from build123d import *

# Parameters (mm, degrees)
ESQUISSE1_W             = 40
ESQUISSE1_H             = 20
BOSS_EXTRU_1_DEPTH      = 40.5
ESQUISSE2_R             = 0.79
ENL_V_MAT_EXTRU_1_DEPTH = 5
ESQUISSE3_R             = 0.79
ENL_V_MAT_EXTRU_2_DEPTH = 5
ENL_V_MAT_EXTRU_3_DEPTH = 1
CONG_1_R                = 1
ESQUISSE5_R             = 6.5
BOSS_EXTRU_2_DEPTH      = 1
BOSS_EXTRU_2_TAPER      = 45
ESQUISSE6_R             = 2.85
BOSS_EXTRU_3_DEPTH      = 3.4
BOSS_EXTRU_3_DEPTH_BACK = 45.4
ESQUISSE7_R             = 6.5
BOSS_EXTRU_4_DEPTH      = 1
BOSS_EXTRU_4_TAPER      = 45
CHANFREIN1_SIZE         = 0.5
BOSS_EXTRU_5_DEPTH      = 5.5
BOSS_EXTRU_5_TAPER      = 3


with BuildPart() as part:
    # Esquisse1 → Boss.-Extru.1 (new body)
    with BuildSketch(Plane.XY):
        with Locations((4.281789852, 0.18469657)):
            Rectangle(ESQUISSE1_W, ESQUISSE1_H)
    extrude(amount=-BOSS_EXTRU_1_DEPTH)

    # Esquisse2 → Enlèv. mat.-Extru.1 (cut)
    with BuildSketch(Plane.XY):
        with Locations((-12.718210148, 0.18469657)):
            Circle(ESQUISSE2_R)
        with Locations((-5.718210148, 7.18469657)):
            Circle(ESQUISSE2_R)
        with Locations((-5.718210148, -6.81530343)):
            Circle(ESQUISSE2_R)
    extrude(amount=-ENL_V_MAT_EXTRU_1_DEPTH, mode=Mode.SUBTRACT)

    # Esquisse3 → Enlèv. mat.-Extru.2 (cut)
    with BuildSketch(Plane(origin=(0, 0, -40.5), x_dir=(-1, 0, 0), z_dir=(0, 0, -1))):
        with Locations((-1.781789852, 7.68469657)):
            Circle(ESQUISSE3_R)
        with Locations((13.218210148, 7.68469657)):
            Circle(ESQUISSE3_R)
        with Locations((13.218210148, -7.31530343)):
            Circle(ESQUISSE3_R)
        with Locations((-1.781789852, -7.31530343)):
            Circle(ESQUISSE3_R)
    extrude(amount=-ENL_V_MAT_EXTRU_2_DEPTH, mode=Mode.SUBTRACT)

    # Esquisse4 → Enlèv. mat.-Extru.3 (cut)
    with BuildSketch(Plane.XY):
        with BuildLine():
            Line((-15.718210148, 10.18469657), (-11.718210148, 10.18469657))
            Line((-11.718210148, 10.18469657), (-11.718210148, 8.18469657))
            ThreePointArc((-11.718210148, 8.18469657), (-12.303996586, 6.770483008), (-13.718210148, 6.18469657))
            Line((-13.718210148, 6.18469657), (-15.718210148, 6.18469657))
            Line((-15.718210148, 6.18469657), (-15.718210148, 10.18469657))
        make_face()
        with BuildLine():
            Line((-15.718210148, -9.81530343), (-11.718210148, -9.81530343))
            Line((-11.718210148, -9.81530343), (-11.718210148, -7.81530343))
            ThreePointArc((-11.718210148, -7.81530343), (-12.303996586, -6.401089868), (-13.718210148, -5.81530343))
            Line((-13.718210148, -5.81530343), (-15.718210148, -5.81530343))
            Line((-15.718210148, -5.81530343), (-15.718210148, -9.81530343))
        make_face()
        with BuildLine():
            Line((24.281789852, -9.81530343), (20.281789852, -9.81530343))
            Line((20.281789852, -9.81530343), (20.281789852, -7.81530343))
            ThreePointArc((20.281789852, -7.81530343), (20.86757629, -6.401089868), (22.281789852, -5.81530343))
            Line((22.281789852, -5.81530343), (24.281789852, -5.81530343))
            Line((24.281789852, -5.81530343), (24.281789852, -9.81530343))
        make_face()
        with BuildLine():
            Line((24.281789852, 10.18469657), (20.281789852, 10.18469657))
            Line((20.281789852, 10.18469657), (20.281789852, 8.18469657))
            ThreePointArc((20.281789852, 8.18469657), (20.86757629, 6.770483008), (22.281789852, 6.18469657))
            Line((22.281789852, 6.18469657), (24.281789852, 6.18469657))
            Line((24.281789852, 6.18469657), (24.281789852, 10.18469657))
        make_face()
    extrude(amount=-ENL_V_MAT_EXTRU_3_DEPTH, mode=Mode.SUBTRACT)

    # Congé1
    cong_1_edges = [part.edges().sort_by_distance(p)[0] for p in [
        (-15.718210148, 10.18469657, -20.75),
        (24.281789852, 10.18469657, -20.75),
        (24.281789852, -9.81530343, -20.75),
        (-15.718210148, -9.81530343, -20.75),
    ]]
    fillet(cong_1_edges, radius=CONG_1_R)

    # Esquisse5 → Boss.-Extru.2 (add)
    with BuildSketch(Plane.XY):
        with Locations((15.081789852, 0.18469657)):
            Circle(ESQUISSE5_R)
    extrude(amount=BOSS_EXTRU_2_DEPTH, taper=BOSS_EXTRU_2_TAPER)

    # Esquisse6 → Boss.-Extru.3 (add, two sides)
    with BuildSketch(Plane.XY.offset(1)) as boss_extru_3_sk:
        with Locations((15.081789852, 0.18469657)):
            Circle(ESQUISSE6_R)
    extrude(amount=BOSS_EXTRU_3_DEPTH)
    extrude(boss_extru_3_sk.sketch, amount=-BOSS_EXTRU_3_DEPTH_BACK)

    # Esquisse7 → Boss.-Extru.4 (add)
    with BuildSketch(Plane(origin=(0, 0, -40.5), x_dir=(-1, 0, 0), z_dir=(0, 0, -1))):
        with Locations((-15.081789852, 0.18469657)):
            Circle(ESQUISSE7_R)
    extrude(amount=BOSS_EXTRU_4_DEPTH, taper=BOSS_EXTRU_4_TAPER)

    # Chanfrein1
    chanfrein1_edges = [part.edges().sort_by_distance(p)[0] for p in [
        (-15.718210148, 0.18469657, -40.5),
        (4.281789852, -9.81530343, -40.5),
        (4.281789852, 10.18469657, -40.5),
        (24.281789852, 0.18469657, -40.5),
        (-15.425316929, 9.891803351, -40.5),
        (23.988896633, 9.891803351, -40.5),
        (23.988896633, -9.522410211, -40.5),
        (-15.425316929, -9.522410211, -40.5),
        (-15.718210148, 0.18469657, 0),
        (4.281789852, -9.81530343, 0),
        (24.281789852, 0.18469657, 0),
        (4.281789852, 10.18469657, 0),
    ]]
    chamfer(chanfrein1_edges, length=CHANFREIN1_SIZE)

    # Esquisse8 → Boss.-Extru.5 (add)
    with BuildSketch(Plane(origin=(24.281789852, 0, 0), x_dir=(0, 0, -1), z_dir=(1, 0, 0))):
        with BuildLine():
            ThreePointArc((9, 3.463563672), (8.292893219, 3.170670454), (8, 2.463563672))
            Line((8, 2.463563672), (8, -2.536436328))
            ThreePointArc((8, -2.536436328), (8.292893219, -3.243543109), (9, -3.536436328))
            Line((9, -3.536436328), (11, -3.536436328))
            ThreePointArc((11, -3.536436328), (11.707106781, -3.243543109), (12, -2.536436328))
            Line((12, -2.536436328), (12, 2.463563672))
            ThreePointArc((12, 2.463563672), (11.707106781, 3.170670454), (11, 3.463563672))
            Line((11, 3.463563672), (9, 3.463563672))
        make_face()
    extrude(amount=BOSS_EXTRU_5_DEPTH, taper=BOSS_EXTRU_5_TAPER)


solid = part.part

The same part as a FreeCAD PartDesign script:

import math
import FreeCAD as App
import Part
import Sketcher

V = App.Vector
Q = App.Units.Quantity


def edges_at(feature, points):
    """Names of the edges that pass closest to the given points."""
    edges = feature.Shape.Edges
    near = lambda p: min(range(len(edges)), key=lambda i: edges[i].distToShape(Part.Vertex(*p))[0])
    return sorted({f"Edge{near(p) + 1}" for p in points})


def add_polygon(sketch, points):
    """Adds a closed chain of lines whose ends are joined by coincident constraints."""
    first, n = sketch.GeometryCount, len(points)
    for a, b in zip(points, points[1:] + points[:1]):
        sketch.addGeometry(Part.LineSegment(App.Vector(*a, 0), App.Vector(*b, 0)), False)
    for i in range(n):
        sketch.addConstraint(Sketcher.Constraint("Coincident", first + i, 2, first + (i + 1) % n, 1))

doc = App.newDocument("Part")
params = doc.addObject("Spreadsheet::Sheet", "Params")
for row, (alias, value) in enumerate([
    ("sketch1_width", "40 mm"),
    ("sketch1_height", "20 mm"),
    ("pad1_length", "40.5 mm"),
    ("sketch2_diameter", "1.58 mm"),
    ("pocket1_length", "5 mm"),
    ("sketch3_diameter", "1.58 mm"),
    ("pocket2_length", "5 mm"),
    ("sketch4_radius", "2 mm"),
    ("sketch4_width", "4 mm"),
    ("pocket3_length", "1 mm"),
    ("fillet_radius", "1 mm"),
    ("sketch5_diameter", "13 mm"),
    ("pad2_length", "1 mm"),
    ("pad2_taper", "-45 deg"),
    ("sketch6_diameter", "5.7 mm"),
    ("pad3_length", "3.4 mm"),
    ("pad3_length2", "45.4 mm"),
    ("sketch7_diameter", "13 mm"),
    ("pad4_length", "1 mm"),
    ("pad4_taper", "-45 deg"),
    ("chamfer_size", "0.5 mm"),
    ("sketch8_radius", "1 mm"),
    ("sketch8_width", "5 mm"),
    ("sketch8_height", "2 mm"),
    ("pad5_length", "5.5 mm"),
    ("pad5_taper", "-3 deg"),
], start=1):
    params.set(f"A{row}", alias)
    params.set(f"B{row}", "=" + value)
    params.setAlias(f"B{row}", alias)

body = doc.addObject("PartDesign::Body", "Body")

# Sketch on XY plane
sketch1 = body.newObject("Sketcher::SketchObject", "Sketch")
sketch1.AttachmentSupport = (doc.getObject("XY_Plane"), [""])
sketch1.MapMode = "FlatFace"
add_polygon(sketch1, [(-16, 10), (-16, -10), (24, -10), (24, 10)])  # lines 0-3
sketch1.addConstraint([
    Sketcher.Constraint("Vertical", 0),
    Sketcher.Constraint("Horizontal", 1),
    Sketcher.Constraint("Vertical", 2),
    Sketcher.Constraint("Horizontal", 3),
    Sketcher.Constraint("DistanceX", 1, 1, 1, 2, Q("40 mm")),
    Sketcher.Constraint("DistanceY", 0, 2, 0, 1, Q("20 mm")),
    Sketcher.Constraint("DistanceX", 0, 2, -1, 1, Q("15.71821 mm")),
    Sketcher.Constraint("DistanceY", 0, 2, -1, 1, Q("9.815303 mm")),
])
sketch1.setExpression("Constraints[8]", "Params.sketch1_width")
sketch1.setExpression("Constraints[9]", "Params.sketch1_height")
pad1 = body.newObject("PartDesign::Pad", "Pad")
pad1.Profile = sketch1
pad1.setExpression("Length", "Params.pad1_length")
pad1.Reversed = True

# Sketch on XY plane
sketch2 = body.newObject("Sketcher::SketchObject", "Sketch001")
sketch2.AttachmentSupport = (doc.getObject("XY_Plane"), [""])
sketch2.MapMode = "FlatFace"
sketch2.addGeometry([
    Part.Circle(V(-12.7, 0.2, 0), V(0, 0, 1), 0.8),
    Part.Circle(V(-5.7, 7.2, 0), V(0, 0, 1), 0.8),
    Part.Circle(V(-5.7, -6.8, 0), V(0, 0, 1), 0.8),
], False)
sketch2.addConstraint([
    Sketcher.Constraint("Equal", 0, 1),
    Sketcher.Constraint("Equal", 1, 2),
    Sketcher.Constraint("Vertical", 1, 3, 2, 3),
    Sketcher.Constraint("Diameter", 0, Q("1.58 mm")),
    Sketcher.Constraint("DistanceX", 0, 3, 1, 3, Q("7 mm")),
    Sketcher.Constraint("DistanceY", 0, 3, 1, 3, Q("7 mm")),
    Sketcher.Constraint("DistanceY", 2, 3, 0, 3, Q("7 mm")),
    Sketcher.Constraint("DistanceX", 0, 3, -1, 1, Q("12.71821 mm")),
    Sketcher.Constraint("DistanceY", -1, 1, 0, 3, Q("0.184697 mm")),
])
sketch2.setExpression("Constraints[3]", "Params.sketch2_diameter")
pocket1 = body.newObject("PartDesign::Pocket", "Pocket")
pocket1.Profile = sketch2
pocket1.setExpression("Length", "Params.pocket1_length")

# Sketch on XY plane
sketch3 = body.newObject("Sketcher::SketchObject", "Sketch002")
sketch3.AttachmentSupport = (doc.getObject("XY_Plane"), [""])
sketch3.MapMode = "FlatFace"
sketch3.AttachmentOffset = App.Placement(V(0, 0, -40.5), App.Rotation())
sketch3.addGeometry([
    Part.Circle(V(1.8, 7.7, 0), V(0, 0, 1), 0.8),
    Part.Circle(V(-13.2, 7.7, 0), V(0, 0, 1), 0.8),
    Part.Circle(V(-13.2, -7.3, 0), V(0, 0, 1), 0.8),
    Part.Circle(V(1.8, -7.3, 0), V(0, 0, 1), 0.8),
], False)
sketch3.addConstraint([
    Sketcher.Constraint("Equal", 0, 1),
    Sketcher.Constraint("Equal", 1, 2),
    Sketcher.Constraint("Equal", 2, 3),
    Sketcher.Constraint("Horizontal", 0, 3, 1, 3),
    Sketcher.Constraint("Horizontal", 2, 3, 3, 3),
    Sketcher.Constraint("Vertical", 1, 3, 2, 3),
    Sketcher.Constraint("Vertical", 0, 3, 3, 3),
    Sketcher.Constraint("Diameter", 0, Q("1.58 mm")),
    Sketcher.Constraint("DistanceX", 1, 3, 0, 3, Q("15 mm")),
    Sketcher.Constraint("DistanceY", 2, 3, 1, 3, Q("15 mm")),
    Sketcher.Constraint("DistanceX", -1, 1, 0, 3, Q("1.78179 mm")),
    Sketcher.Constraint("DistanceY", -1, 1, 0, 3, Q("7.684697 mm")),
])
sketch3.setExpression("Constraints[7]", "Params.sketch3_diameter")
pocket2 = body.newObject("PartDesign::Pocket", "Pocket001")
pocket2.Profile = sketch3
pocket2.setExpression("Length", "Params.pocket2_length")
pocket2.Reversed = True

# Sketch on XY plane
sketch4 = body.newObject("Sketcher::SketchObject", "Sketch003")
sketch4.AttachmentSupport = (doc.getObject("XY_Plane"), [""])
sketch4.MapMode = "FlatFace"
sketch4.addGeometry([
    Part.LineSegment(V(-11.7, 10.2, 0), V(-15.7, 10.2, 0)),  # 0
    Part.LineSegment(V(-15.7, 10.2, 0), V(-15.7, 6.2, 0)),  # 1
    Part.LineSegment(V(-15.7, 6.2, 0), V(-13.7, 6.2, 0)),  # 2
    Part.ArcOfCircle(Part.Circle(V(-13.7, 8.2, 0), V(0, 0, 1), 2), math.radians(-90), math.radians(0)),  # 3
    Part.LineSegment(V(-11.7, 8.2, 0), V(-11.7, 10.2, 0)),  # 4
    Part.LineSegment(V(-15.7, -9.8, 0), V(-11.7, -9.8, 0)),  # 5
    Part.LineSegment(V(-11.7, -9.8, 0), V(-11.7, -7.8, 0)),  # 6
    Part.ArcOfCircle(Part.Circle(V(-13.7, -7.8, 0), V(0, 0, 1), 2), math.radians(0), math.radians(90)),  # 7
    Part.LineSegment(V(-13.7, -5.8, 0), V(-15.7, -5.8, 0)),  # 8
    Part.LineSegment(V(-15.7, -5.8, 0), V(-15.7, -9.8, 0)),  # 9
    Part.LineSegment(V(20.3, -9.8, 0), V(24.3, -9.8, 0)),  # 10
    Part.LineSegment(V(24.3, -9.8, 0), V(24.3, -5.8, 0)),  # 11
    Part.LineSegment(V(24.3, -5.8, 0), V(22.3, -5.8, 0)),  # 12
    Part.ArcOfCircle(Part.Circle(V(22.3, -7.8, 0), V(0, 0, 1), 2), math.radians(90), math.radians(180)),  # 13
    Part.LineSegment(V(20.3, -7.8, 0), V(20.3, -9.8, 0)),  # 14
    Part.LineSegment(V(24.3, 10.2, 0), V(20.3, 10.2, 0)),  # 15
    Part.LineSegment(V(20.3, 10.2, 0), V(20.3, 8.2, 0)),  # 16
    Part.ArcOfCircle(Part.Circle(V(22.3, 8.2, 0), V(0, 0, 1), 2), math.radians(-180), math.radians(-90)),  # 17
    Part.LineSegment(V(22.3, 6.2, 0), V(24.3, 6.2, 0)),  # 18
    Part.LineSegment(V(24.3, 6.2, 0), V(24.3, 10.2, 0)),  # 19
], False)
sketch4.addConstraint([
    Sketcher.Constraint("Coincident", 0, 2, 1, 1),
    Sketcher.Constraint("Coincident", 1, 2, 2, 1),
    Sketcher.Constraint("Tangent", 2, 2, 3, 1),
    Sketcher.Constraint("Tangent", 3, 2, 4, 1),
    Sketcher.Constraint("Coincident", 4, 2, 0, 1),
    Sketcher.Constraint("Coincident", 5, 2, 6, 1),
    Sketcher.Constraint("Tangent", 6, 2, 7, 1),
    Sketcher.Constraint("Tangent", 7, 2, 8, 1),
    Sketcher.Constraint("Coincident", 8, 2, 9, 1),
    Sketcher.Constraint("Coincident", 9, 2, 5, 1),
    Sketcher.Constraint("Coincident", 10, 2, 11, 1),
    Sketcher.Constraint("Coincident", 11, 2, 12, 1),
    Sketcher.Constraint("Tangent", 12, 2, 13, 1),
    Sketcher.Constraint("Tangent", 13, 2, 14, 1),
    Sketcher.Constraint("Coincident", 14, 2, 10, 1),
    Sketcher.Constraint("Coincident", 15, 2, 16, 1),
    Sketcher.Constraint("Tangent", 16, 2, 17, 1),
    Sketcher.Constraint("Tangent", 17, 2, 18, 1),
    Sketcher.Constraint("Coincident", 18, 2, 19, 1),
    Sketcher.Constraint("Coincident", 19, 2, 15, 1),
    Sketcher.Constraint("Horizontal", 0),
    Sketcher.Constraint("Vertical", 1),
    Sketcher.Constraint("Horizontal", 2),
    Sketcher.Constraint("Vertical", 4),
    Sketcher.Constraint("Horizontal", 5),
    Sketcher.Constraint("Vertical", 6),
    Sketcher.Constraint("Horizontal", 8),
    Sketcher.Constraint("Vertical", 9),
    Sketcher.Constraint("Horizontal", 10),
    Sketcher.Constraint("Vertical", 11),
    Sketcher.Constraint("Horizontal", 12),
    Sketcher.Constraint("Vertical", 14),
    Sketcher.Constraint("Horizontal", 15),
    Sketcher.Constraint("Vertical", 16),
    Sketcher.Constraint("Horizontal", 18),
    Sketcher.Constraint("Vertical", 19),
    Sketcher.Constraint("Equal", 3, 7),
    Sketcher.Constraint("Equal", 7, 13),
    Sketcher.Constraint("Equal", 13, 17),
    Sketcher.Constraint("Horizontal", 7, 3, 13, 3),
    Sketcher.Constraint("Horizontal", 3, 3, 17, 3),
    Sketcher.Constraint("Horizontal", 9, 2, 10, 2),
    Sketcher.Constraint("Horizontal", 4, 2, 15, 2),
    Sketcher.Constraint("Vertical", 3, 3, 7, 3),
    Sketcher.Constraint("Vertical", 13, 3, 17, 3),
    Sketcher.Constraint("Vertical", 1, 2, 8, 2),
    Sketcher.Constraint("Vertical", 11, 2, 18, 2),
    Sketcher.Constraint("Equal", 5, 10),
    Sketcher.Constraint("Equal", 15, 1),
    Sketcher.Constraint("Equal", 4, 6),
    Sketcher.Constraint("Radius", 3, Q("2 mm")),
    Sketcher.Constraint("DistanceX", 0, 2, 0, 1, Q("4 mm")),
    Sketcher.Constraint("DistanceY", 7, 3, 3, 3, Q("16 mm")),
    Sketcher.Constraint("DistanceX", 7, 3, 13, 3, Q("36 mm")),
    Sketcher.Constraint("DistanceX", 3, 3, -1, 1, Q("13.71821 mm")),
    Sketcher.Constraint("DistanceY", -1, 1, 3, 3, Q("8.184697 mm")),
])
sketch4.setExpression("Constraints[50]", "Params.sketch4_radius")
sketch4.setExpression("Constraints[51]", "Params.sketch4_width")
pocket3 = body.newObject("PartDesign::Pocket", "Pocket002")
pocket3.Profile = sketch4
pocket3.setExpression("Length", "Params.pocket3_length")
doc.recompute()

fillet = body.newObject("PartDesign::Fillet", "Fillet")
fillet.Base = (pocket3, edges_at(pocket3, [
    (-15.718, 10.185, -20.75),
    (24.282, 10.185, -20.75),
    (24.282, -9.815, -20.75),
    (-15.718, -9.815, -20.75),
]))
fillet.setExpression("Radius", "Params.fillet_radius")

# Sketch on XY plane
sketch5 = body.newObject("Sketcher::SketchObject", "Sketch004")
sketch5.AttachmentSupport = (doc.getObject("XY_Plane"), [""])
sketch5.MapMode = "FlatFace"
sketch5.addGeometry(Part.Circle(V(15, 0, 0), V(0, 0, 1), 6), False)
sketch5.addConstraint([
    Sketcher.Constraint("Diameter", 0, Q("13 mm")),
    Sketcher.Constraint("DistanceX", -1, 1, 0, 3, Q("15.08179 mm")),
    Sketcher.Constraint("DistanceY", -1, 1, 0, 3, Q("0.184697 mm")),
])
sketch5.setExpression("Constraints[0]", "Params.sketch5_diameter")
pad2 = body.newObject("PartDesign::Pad", "Pad001")
pad2.Profile = sketch5
pad2.setExpression("Length", "Params.pad2_length")
pad2.setExpression("TaperAngle", "Params.pad2_taper")

# Sketch on XY plane
sketch6 = body.newObject("Sketcher::SketchObject", "Sketch005")
sketch6.AttachmentSupport = (doc.getObject("XY_Plane"), [""])
sketch6.MapMode = "FlatFace"
sketch6.AttachmentOffset = App.Placement(V(0, 0, 1), App.Rotation())
sketch6.addGeometry(Part.Circle(V(15.1, 0.2, 0), V(0, 0, 1), 2.9), False)
sketch6.addConstraint([
    Sketcher.Constraint("Diameter", 0, Q("5.7 mm")),
    Sketcher.Constraint("DistanceX", -1, 1, 0, 3, Q("15.08179 mm")),
    Sketcher.Constraint("DistanceY", -1, 1, 0, 3, Q("0.184697 mm")),
])
sketch6.setExpression("Constraints[0]", "Params.sketch6_diameter")
pad3 = body.newObject("PartDesign::Pad", "Pad002")
pad3.Profile = sketch6
pad3.Type = "TwoLengths"
pad3.setExpression("Length", "Params.pad3_length")
pad3.setExpression("Length2", "Params.pad3_length2")

# Sketch on XY plane
sketch7 = body.newObject("Sketcher::SketchObject", "Sketch006")
sketch7.AttachmentSupport = (doc.getObject("XY_Plane"), [""])
sketch7.MapMode = "FlatFace"
sketch7.AttachmentOffset = App.Placement(V(0, 0, -40.5), App.Rotation())
sketch7.addGeometry(Part.Circle(V(15, 0, 0), V(0, 0, 1), 6), False)
sketch7.addConstraint([
    Sketcher.Constraint("Diameter", 0, Q("13 mm")),
    Sketcher.Constraint("DistanceX", -1, 1, 0, 3, Q("15.08179 mm")),
    Sketcher.Constraint("DistanceY", -1, 1, 0, 3, Q("0.184697 mm")),
])
sketch7.setExpression("Constraints[0]", "Params.sketch7_diameter")
pad4 = body.newObject("PartDesign::Pad", "Pad003")
pad4.Profile = sketch7
pad4.setExpression("Length", "Params.pad4_length")
pad4.Reversed = True
pad4.setExpression("TaperAngle", "Params.pad4_taper")
doc.recompute()

chamfer = body.newObject("PartDesign::Chamfer", "Chamfer")
chamfer.Base = (pad4, edges_at(pad4, [
    (-15.718, 0.185, -40.5),
    (4.282, -9.815, -40.5),
    (4.282, 10.185, -40.5),
    (24.282, 0.185, -40.5),
    (-15.425, 9.892, -40.5),
    (23.989, 9.892, -40.5),
    (23.989, -9.522, -40.5),
    (-15.425, -9.522, -40.5),
    (-15.718, 0.185, 0),
    (4.282, -9.815, 0),
    (24.282, 0.185, 0),
    (4.282, 10.185, 0),
]))
chamfer.setExpression("Size", "Params.chamfer_size")

# Sketch on YZ plane
sketch8 = body.newObject("Sketcher::SketchObject", "Sketch007")
sketch8.AttachmentSupport = (doc.getObject("YZ_Plane"), [""])
sketch8.MapMode = "FlatFace"
sketch8.AttachmentOffset = App.Placement(V(0, 0, 24.28179), App.Rotation())
sketch8.addGeometry([
    Part.ArcOfCircle(Part.Circle(V(2.5, -9, 0), V(0, 0, 1), 1), math.radians(0), math.radians(90)),  # 0
    Part.LineSegment(V(2.5, -8, 0), V(-2.5, -8, 0)),  # 1
    Part.ArcOfCircle(Part.Circle(V(-2.5, -9, 0), V(0, 0, 1), 1), math.radians(90), math.radians(180)),  # 2
    Part.LineSegment(V(-3.5, -9, 0), V(-3.5, -11, 0)),  # 3
    Part.ArcOfCircle(Part.Circle(V(-2.5, -11, 0), V(0, 0, 1), 1), math.radians(-180), math.radians(-90)),  # 4
    Part.LineSegment(V(-2.5, -12, 0), V(2.5, -12, 0)),  # 5
    Part.ArcOfCircle(Part.Circle(V(2.5, -11, 0), V(0, 0, 1), 1), math.radians(-90), math.radians(0)),  # 6
    Part.LineSegment(V(3.5, -11, 0), V(3.5, -9, 0)),  # 7
], False)
sketch8.addConstraint([
    Sketcher.Constraint("Tangent", 0, 2, 1, 1),
    Sketcher.Constraint("Tangent", 1, 2, 2, 1),
    Sketcher.Constraint("Tangent", 2, 2, 3, 1),
    Sketcher.Constraint("Tangent", 3, 2, 4, 1),
    Sketcher.Constraint("Tangent", 4, 2, 5, 1),
    Sketcher.Constraint("Tangent", 5, 2, 6, 1),
    Sketcher.Constraint("Tangent", 6, 2, 7, 1),
    Sketcher.Constraint("Tangent", 7, 2, 0, 1),
    Sketcher.Constraint("Horizontal", 1),
    Sketcher.Constraint("Vertical", 3),
    Sketcher.Constraint("Horizontal", 5),
    Sketcher.Constraint("Vertical", 7),
    Sketcher.Constraint("Equal", 0, 2),
    Sketcher.Constraint("Equal", 2, 4),
    Sketcher.Constraint("Equal", 4, 6),
    Sketcher.Constraint("Radius", 0, Q("1 mm")),
    Sketcher.Constraint("DistanceX", 1, 2, 1, 1, Q("5 mm")),
    Sketcher.Constraint("DistanceY", 3, 2, 3, 1, Q("2 mm")),
    Sketcher.Constraint("DistanceY", 0, 3, -1, 1, Q("9 mm")),
    Sketcher.Constraint("DistanceX", -1, 1, 0, 3, Q("2.463564 mm")),
])
sketch8.setExpression("Constraints[15]", "Params.sketch8_radius")
sketch8.setExpression("Constraints[16]", "Params.sketch8_width")
sketch8.setExpression("Constraints[17]", "Params.sketch8_height")
pad5 = body.newObject("PartDesign::Pad", "Pad004")
pad5.Profile = sketch8
pad5.setExpression("Length", "Params.pad5_length")
pad5.setExpression("TaperAngle", "Params.pad5_taper")

doc.recompute()
